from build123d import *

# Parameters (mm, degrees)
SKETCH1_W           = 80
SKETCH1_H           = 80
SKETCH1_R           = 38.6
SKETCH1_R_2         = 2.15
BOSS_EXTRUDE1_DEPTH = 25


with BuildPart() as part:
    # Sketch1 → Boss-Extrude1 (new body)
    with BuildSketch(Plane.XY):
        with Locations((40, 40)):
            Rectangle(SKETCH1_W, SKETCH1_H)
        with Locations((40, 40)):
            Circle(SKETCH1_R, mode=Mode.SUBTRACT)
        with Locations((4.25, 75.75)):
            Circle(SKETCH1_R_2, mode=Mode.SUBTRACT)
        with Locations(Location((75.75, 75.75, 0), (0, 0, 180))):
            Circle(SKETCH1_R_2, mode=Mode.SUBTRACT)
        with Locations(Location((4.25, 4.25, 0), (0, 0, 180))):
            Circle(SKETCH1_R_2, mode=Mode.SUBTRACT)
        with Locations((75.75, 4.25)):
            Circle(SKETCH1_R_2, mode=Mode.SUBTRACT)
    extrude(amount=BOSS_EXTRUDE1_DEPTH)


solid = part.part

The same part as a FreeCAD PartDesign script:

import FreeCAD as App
import Part
import Sketcher


def add_polygon(sketch, points):
    """Adds a closed chain of lines whose ends are joined by coincident constraints."""
    first, n = sketch.GeometryCount, len(points)
    for a, b in zip(points, points[1:] + points[:1]):
        sketch.addGeometry(Part.LineSegment(App.Vector(*a, 0), App.Vector(*b, 0)), False)
    for i in range(n):
        sketch.addConstraint(Sketcher.Constraint("Coincident", first + i, 2, first + (i + 1) % n, 1))

doc = App.newDocument("Part")
body = doc.addObject("PartDesign::Body", "Body")

sketch1 = body.newObject("Sketcher::SketchObject", "Sketch")
sketch1.AttachmentSupport = (doc.getObject("XY_Plane"), [""])
sketch1.MapMode = "FlatFace"
add_polygon(sketch1, [(0, 80), (0, 0), (80, 0), (80, 80)])
sketch1.addGeometry(Part.Circle(App.Vector(4.25, 4.25, 0), App.Vector(0, 0, 1), 2.15), False)
sketch1.addGeometry(Part.Circle(App.Vector(75.75, 4.25, 0), App.Vector(0, 0, 1), 2.15), False)
sketch1.addGeometry(Part.Circle(App.Vector(4.25, 75.75, 0), App.Vector(0, 0, 1), 2.15), False)
sketch1.addGeometry(Part.Circle(App.Vector(40, 40, 0), App.Vector(0, 0, 1), 38.6), False)
sketch1.addGeometry(Part.Circle(App.Vector(75.75, 75.75, 0), App.Vector(0, 0, 1), 2.15), False)
sketch1.addConstraint(Sketcher.Constraint("Vertical", 0))
sketch1.addConstraint(Sketcher.Constraint("Horizontal", 1))
sketch1.addConstraint(Sketcher.Constraint("Vertical", 2))
sketch1.addConstraint(Sketcher.Constraint("Horizontal", 3))
sketch1.addConstraint(Sketcher.Constraint("Coincident", 0, 2, -1, 1))
sketch1.addConstraint(Sketcher.Constraint("Equal", 4, 5))
sketch1.addConstraint(Sketcher.Constraint("Equal", 5, 6))
sketch1.addConstraint(Sketcher.Constraint("Equal", 6, 8))
sketch1.addConstraint(Sketcher.Constraint("Horizontal", 4, 3, 5, 3))
sketch1.addConstraint(Sketcher.Constraint("Horizontal", 6, 3, 8, 3))
sketch1.addConstraint(Sketcher.Constraint("Vertical", 4, 3, 6, 3))
sketch1.addConstraint(Sketcher.Constraint("Vertical", 5, 3, 8, 3))
sketch1.addConstraint(Sketcher.Constraint("Equal", 3, 0))
sketch1.addConstraint(Sketcher.Constraint("Diameter", 4, 4.3))
sketch1.addConstraint(Sketcher.Constraint("Diameter", 7, 77.2))
sketch1.addConstraint(Sketcher.Constraint("DistanceX", 1, 1, 1, 2, 80.0))
sketch1.addConstraint(Sketcher.Constraint("DistanceX", -1, 1, 7, 3, 40.0))
sketch1.addConstraint(Sketcher.Constraint("DistanceY", -1, 1, 7, 3, 40.0))
sketch1.addConstraint(Sketcher.Constraint("DistanceX", 4, 3, 5, 3, 71.5))
sketch1.addConstraint(Sketcher.Constraint("DistanceY", 4, 3, 6, 3, 71.5))
sketch1.addConstraint(Sketcher.Constraint("DistanceX", -1, 1, 4, 3, 4.25))
sketch1.addConstraint(Sketcher.Constraint("DistanceY", -1, 1, 4, 3, 4.25))
pad1 = body.newObject("PartDesign::Pad", "Pad")
pad1.Profile = sketch1
pad1.Length = 25

doc.recompute()
